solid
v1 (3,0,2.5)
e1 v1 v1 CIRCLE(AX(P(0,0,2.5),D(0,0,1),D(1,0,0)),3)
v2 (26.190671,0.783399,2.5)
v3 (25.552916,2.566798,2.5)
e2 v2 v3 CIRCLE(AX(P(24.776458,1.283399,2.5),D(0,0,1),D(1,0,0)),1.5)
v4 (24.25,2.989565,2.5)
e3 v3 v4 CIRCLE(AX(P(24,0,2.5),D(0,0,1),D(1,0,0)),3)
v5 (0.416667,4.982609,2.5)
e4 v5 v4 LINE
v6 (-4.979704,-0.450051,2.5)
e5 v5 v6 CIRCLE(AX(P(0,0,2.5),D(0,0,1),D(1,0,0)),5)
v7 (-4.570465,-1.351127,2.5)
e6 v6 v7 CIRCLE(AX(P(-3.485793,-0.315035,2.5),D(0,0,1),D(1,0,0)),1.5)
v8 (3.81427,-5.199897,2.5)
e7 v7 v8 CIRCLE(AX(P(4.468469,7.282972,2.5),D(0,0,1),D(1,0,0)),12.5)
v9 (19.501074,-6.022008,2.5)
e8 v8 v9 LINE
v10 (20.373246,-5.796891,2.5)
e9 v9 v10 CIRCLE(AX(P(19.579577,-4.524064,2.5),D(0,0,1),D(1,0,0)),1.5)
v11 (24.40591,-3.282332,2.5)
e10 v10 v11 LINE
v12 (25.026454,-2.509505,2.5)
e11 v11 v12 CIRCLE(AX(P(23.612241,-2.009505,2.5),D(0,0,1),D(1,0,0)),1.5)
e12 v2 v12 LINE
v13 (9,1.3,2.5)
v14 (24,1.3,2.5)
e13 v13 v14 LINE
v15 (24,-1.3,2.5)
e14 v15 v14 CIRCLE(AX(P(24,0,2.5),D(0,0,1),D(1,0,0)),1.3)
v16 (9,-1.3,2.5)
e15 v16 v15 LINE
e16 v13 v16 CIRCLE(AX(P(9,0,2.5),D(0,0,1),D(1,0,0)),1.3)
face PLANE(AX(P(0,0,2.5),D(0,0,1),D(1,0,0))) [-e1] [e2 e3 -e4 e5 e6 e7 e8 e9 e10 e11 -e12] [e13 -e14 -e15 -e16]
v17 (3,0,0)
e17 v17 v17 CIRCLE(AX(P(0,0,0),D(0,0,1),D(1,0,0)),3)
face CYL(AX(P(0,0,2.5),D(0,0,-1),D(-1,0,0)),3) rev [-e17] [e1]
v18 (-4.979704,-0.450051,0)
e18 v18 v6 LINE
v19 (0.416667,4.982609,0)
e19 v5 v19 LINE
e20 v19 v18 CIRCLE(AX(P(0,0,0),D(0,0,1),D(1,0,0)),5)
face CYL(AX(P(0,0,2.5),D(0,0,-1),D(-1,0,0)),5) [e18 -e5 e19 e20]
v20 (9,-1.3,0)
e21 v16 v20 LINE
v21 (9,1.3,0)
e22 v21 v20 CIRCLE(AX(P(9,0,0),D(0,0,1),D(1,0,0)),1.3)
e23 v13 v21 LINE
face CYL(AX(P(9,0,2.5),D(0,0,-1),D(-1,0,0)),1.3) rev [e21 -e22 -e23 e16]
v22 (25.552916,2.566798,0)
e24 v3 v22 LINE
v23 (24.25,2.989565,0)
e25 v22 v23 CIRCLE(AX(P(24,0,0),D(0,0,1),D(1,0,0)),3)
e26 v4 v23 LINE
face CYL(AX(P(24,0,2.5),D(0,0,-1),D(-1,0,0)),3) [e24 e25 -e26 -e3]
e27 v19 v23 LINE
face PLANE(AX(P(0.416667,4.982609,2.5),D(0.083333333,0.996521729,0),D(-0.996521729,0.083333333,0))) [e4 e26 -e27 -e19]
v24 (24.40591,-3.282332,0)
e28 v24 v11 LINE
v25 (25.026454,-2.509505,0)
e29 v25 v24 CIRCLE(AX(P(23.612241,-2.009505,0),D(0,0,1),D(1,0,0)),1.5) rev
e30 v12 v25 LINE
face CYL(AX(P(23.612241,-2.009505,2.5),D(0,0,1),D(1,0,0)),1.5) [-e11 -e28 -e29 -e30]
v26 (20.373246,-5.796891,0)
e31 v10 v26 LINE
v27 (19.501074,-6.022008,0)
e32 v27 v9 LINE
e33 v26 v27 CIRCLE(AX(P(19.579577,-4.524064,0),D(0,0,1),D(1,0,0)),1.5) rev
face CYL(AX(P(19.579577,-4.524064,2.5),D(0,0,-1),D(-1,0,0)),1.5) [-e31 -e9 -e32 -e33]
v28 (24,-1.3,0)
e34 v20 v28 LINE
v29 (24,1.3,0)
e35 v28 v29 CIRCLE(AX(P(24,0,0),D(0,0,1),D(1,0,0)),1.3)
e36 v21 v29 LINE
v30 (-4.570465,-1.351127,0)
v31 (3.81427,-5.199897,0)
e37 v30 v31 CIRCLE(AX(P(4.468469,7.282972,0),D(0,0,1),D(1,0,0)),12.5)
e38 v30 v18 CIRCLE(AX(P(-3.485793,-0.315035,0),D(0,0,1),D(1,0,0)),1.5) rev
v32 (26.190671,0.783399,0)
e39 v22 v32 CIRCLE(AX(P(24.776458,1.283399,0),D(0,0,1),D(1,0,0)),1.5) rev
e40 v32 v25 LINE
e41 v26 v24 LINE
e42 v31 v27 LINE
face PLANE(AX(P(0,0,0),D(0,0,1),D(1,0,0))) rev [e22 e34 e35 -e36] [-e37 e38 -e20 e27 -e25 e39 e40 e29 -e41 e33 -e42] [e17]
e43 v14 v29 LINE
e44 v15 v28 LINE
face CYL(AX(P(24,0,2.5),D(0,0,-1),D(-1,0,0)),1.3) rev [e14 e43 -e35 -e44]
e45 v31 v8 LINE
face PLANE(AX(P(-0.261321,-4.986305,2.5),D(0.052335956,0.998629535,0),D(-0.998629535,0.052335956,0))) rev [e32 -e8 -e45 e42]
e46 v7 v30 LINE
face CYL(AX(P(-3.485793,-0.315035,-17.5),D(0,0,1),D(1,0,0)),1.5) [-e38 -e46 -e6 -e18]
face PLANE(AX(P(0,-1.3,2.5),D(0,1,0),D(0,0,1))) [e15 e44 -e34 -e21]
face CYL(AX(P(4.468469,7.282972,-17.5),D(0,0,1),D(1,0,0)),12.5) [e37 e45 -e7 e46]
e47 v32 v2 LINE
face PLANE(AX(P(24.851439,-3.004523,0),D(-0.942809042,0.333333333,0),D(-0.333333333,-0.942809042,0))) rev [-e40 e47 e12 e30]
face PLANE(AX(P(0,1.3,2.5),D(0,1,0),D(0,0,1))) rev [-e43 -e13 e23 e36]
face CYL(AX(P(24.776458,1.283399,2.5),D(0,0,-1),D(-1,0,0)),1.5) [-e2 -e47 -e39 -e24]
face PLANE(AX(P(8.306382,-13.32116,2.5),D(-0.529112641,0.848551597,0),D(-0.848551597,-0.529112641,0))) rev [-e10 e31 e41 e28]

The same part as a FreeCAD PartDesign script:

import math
import FreeCAD as App
import Part
import Sketcher

V = App.Vector
Q = App.Units.Quantity


def edges_at(feature, points):
    """Names of the edges that pass closest to the given points."""
    edges = feature.Shape.Edges
    near = lambda p: min(range(len(edges)), key=lambda i: edges[i].distToShape(Part.Vertex(*p))[0])
    return sorted({f"Edge{near(p) + 1}" for p in points})

doc = App.newDocument("Part")
body = doc.addObject("PartDesign::Body", "Body")

# Sketch on XY plane
sketch1 = body.newObject("Sketcher::SketchObject", "Sketch")
sketch1.AttachmentSupport = (doc.getObject("XY_Plane"), [""])
sketch1.MapMode = "FlatFace"
sketch1.addGeometry([
    Part.ArcOfCircle(Part.Circle(V(0, 0, 0), V(0, 0, 1), 5), math.radians(85), math.radians(270)),  # 0
    Part.LineSegment(V(0, -5, 0), V(20, -6, 0)),  # 1
    Part.LineSegment(V(20, -6, 0), V(25.6, -2.5, 0)),  # 2
    Part.ArcOfCircle(Part.Circle(V(24, 0, 0), V(0, 0, 1), 3), math.radians(-58), math.radians(85)),  # 3
    Part.LineSegment(V(24.2, 3, 0), V(0.4, 5, 0)),  # 4
    Part.Circle(V(0, 0, 0), V(0, 0, 1), 3),  # 5
    Part.LineSegment(V(24, -1.3, 0), V(9, -1.3, 0)),  # 6
    Part.ArcOfCircle(Part.Circle(V(9, 0, 0), V(0, 0, 1), 1.3), math.radians(90), math.radians(270)),  # 7
    Part.LineSegment(V(9, 1.3, 0), V(24, 1.3, 0)),  # 8
    Part.ArcOfCircle(Part.Circle(V(24, 0, 0), V(0, 0, 1), 1.3), math.radians(-90), math.radians(90)),  # 9
], False)
sketch1.addConstraint([
    Sketcher.Constraint("Coincident", 0, 2, 1, 1),
    Sketcher.Constraint("Coincident", 1, 2, 2, 1),
    Sketcher.Constraint("Tangent", 2, 2, 3, 1),
    Sketcher.Constraint("Tangent", 3, 2, 4, 1),
    Sketcher.Constraint("Tangent", 4, 2, 0, 1),
    Sketcher.Constraint("Tangent", 6, 2, 7, 2),
    Sketcher.Constraint("Tangent", 7, 1, 8, 1),
    Sketcher.Constraint("Tangent", 8, 2, 9, 2),
    Sketcher.Constraint("Tangent", 9, 1, 6, 1),
    Sketcher.Constraint("Horizontal", 6),
    Sketcher.Constraint("Horizontal", 8),
    Sketcher.Constraint("Coincident", 0, 3, -1, 1),
    Sketcher.Constraint("Coincident", 5, 3, -1, 1),
    Sketcher.Constraint("Coincident", 9, 3, 3, 3),
    Sketcher.Constraint("Equal", 3, 5),
    Sketcher.Constraint("PointOnObject", 3, 3, -1),
    Sketcher.Constraint("PointOnObject", 0, 2, -2),
    Sketcher.Constraint("Diameter", 5, Q("6 mm")),
    Sketcher.Constraint("Radius", 0, Q("5 mm")),
    Sketcher.Constraint("Radius", 7, Q("1.3 mm")),
    Sketcher.Constraint("DistanceX", 6, 2, 6, 1, Q("15 mm")),
    Sketcher.Constraint("Angle", 1, Q("-3 deg")),
    Sketcher.Constraint("Distance", 1, Q("20 mm")),
    Sketcher.Constraint("DistanceX", -1, 1, 3, 3, Q("24 mm")),
])
pad1 = body.newObject("PartDesign::Pad", "Pad")
pad1.Profile = sketch1
pad1.Length = 2.5

# Sketch on XY plane
sketch2 = body.newObject("Sketcher::SketchObject", "Sketch001")
sketch2.AttachmentSupport = (doc.getObject("XY_Plane"), [""])
sketch2.MapMode = "FlatFace"
sketch2.addGeometry([
    Part.LineSegment(V(24.9, -3, 0), V(25.6, -2.5, 0)),
    Part.ArcOfCircle(Part.Circle(V(24, 0, 0), V(0, 0, 1), 3), math.radians(-58), math.radians(34)),
    Part.LineSegment(V(26.5, 1.7, 0), V(24.9, -3, 0)),
], False)
sketch2.addConstraint([
    Sketcher.Constraint("Tangent", 0, 2, 1, 1),
    Sketcher.Constraint("Coincident", 1, 2, 2, 1),
    Sketcher.Constraint("Coincident", 2, 2, 0, 1),
    Sketcher.Constraint("PointOnObject", 1, 3, -1),
    Sketcher.Constraint("Radius", 1, Q("3 mm")),
    Sketcher.Constraint("DistanceX", -1, 1, 1, 3, Q("24 mm")),
    Sketcher.Constraint("DistanceX", -1, 1, 1, 2, Q("26.5 mm")),
    Sketcher.Constraint("DistanceX", 2, 2, 0, 2, Q("0.735899 mm")),
    Sketcher.Constraint("Distance", 0, Q("0.867242 mm")),
])
pocket1 = body.newObject("PartDesign::Pocket", "Pocket")
pocket1.Profile = sketch2
pocket1.Length = 2.5
pocket1.Reversed = True

# Sketch on XY plane
sketch3 = body.newObject("Sketcher::SketchObject", "Sketch002")
sketch3.AttachmentSupport = (doc.getObject("XY_Plane"), [""])
sketch3.MapMode = "FlatFace"
sketch3.AttachmentOffset = App.Placement(V(0, 0, -17.5), App.Rotation())
sketch3.addGeometry([
    Part.ArcOfCircle(Part.Circle(V(0, 0, 0), V(0, 0, 1), 5), math.radians(-169), math.radians(-90)),
    Part.LineSegment(V(0, -5, 0), V(3.8, -5.2, 0)),
    Part.ArcOfCircle(Part.Circle(V(4.5, 7.3, 0), V(0, 0, 1), 12.5), math.radians(-139), math.radians(-93)),
], False)
sketch3.addConstraint([
    Sketcher.Constraint("Coincident", 0, 2, 1, 1),
    Sketcher.Constraint("Tangent", 1, 2, 2, 2),
    Sketcher.Constraint("Coincident", 2, 1, 0, 1),
    Sketcher.Constraint("Coincident", 0, 3, -1, 1),
    Sketcher.Constraint("PointOnObject", 0, 2, -2),
    Sketcher.Constraint("Radius", 0, Q("5 mm")),
    Sketcher.Constraint("Radius", 2, Q("12.5 mm")),
    Sketcher.Constraint("Angle", 1, Q("-3 deg")),
    Sketcher.Constraint("DistanceY", 2, 1, 2, 3, Q("8.274602 mm")),
])
pocket2 = body.newObject("PartDesign::Pocket", "Pocket001")
pocket2.Profile = sketch3
pocket2.Length = 20
pocket2.Reversed = True
doc.recompute()

fillet = body.newObject("PartDesign::Fillet", "Fillet")
fillet.Base = (pocket2, edges_at(pocket2, [
    (19.973, -6.047, 1.25),
    (26.5, 1.658, 1.25),
    (24.851, -3.005, 1.25),
    (-4.901, -0.992, 1.25),
]))
fillet.Radius = 1.5

doc.recompute()
